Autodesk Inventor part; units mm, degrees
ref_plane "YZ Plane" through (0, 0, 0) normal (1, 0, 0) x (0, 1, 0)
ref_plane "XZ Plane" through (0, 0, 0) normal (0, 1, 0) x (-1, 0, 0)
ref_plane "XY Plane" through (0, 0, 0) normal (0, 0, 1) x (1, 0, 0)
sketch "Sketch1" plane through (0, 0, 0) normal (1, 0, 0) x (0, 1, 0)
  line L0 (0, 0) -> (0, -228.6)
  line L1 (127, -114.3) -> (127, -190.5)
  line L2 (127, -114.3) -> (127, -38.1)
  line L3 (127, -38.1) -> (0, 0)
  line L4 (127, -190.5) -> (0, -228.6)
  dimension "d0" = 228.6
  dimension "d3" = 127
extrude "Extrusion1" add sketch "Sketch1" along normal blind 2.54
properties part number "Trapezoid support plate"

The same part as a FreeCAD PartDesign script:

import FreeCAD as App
import Part
import Sketcher

V = App.Vector
Q = App.Units.Quantity


def add_polygon(sketch, points):
    """Adds a closed chain of lines whose ends are joined by coincident constraints."""
    first, n = sketch.GeometryCount, len(points)
    for a, b in zip(points, points[1:] + points[:1]):
        sketch.addGeometry(Part.LineSegment(App.Vector(*a, 0), App.Vector(*b, 0)), False)
    for i in range(n):
        sketch.addConstraint(Sketcher.Constraint("Coincident", first + i, 2, first + (i + 1) % n, 1))

doc = App.newDocument("Part")
body = doc.addObject("PartDesign::Body", "Body")

# Sketch on YZ plane
sketch1 = doc.addObject("Sketcher::SketchObject", "Sketch")
body.addObject(sketch1)
sketch1.AttachmentSupport = (doc.YZ_Plane, [""])
sketch1.MapMode = "FlatFace"
add_polygon(sketch1, [(127, -38), (0, 0), (0, -229), (127, -190)])  # lines 0-3
sketch1.addConstraint([
    Sketcher.Constraint("Vertical", 1),
    Sketcher.Constraint("Vertical", 3),
    Sketcher.Constraint("Coincident", 0, 2, -1, 1),
    Sketcher.Constraint("Equal", 0, 2),
    Sketcher.Constraint("DistanceY", 1, 2, 1, 1, Q("9 in")),
    Sketcher.Constraint("DistanceX", -1, 1, 2, 2, Q("5 in")),
    Sketcher.Constraint("DistanceY", 3, 1, 3, 2, Q("6 in")),
])
pad1 = doc.addObject("PartDesign::Pad", "Pad")
body.addObject(pad1)
pad1.Profile = sketch1
pad1.Length = Q("0.1 in")

doc.recompute()
